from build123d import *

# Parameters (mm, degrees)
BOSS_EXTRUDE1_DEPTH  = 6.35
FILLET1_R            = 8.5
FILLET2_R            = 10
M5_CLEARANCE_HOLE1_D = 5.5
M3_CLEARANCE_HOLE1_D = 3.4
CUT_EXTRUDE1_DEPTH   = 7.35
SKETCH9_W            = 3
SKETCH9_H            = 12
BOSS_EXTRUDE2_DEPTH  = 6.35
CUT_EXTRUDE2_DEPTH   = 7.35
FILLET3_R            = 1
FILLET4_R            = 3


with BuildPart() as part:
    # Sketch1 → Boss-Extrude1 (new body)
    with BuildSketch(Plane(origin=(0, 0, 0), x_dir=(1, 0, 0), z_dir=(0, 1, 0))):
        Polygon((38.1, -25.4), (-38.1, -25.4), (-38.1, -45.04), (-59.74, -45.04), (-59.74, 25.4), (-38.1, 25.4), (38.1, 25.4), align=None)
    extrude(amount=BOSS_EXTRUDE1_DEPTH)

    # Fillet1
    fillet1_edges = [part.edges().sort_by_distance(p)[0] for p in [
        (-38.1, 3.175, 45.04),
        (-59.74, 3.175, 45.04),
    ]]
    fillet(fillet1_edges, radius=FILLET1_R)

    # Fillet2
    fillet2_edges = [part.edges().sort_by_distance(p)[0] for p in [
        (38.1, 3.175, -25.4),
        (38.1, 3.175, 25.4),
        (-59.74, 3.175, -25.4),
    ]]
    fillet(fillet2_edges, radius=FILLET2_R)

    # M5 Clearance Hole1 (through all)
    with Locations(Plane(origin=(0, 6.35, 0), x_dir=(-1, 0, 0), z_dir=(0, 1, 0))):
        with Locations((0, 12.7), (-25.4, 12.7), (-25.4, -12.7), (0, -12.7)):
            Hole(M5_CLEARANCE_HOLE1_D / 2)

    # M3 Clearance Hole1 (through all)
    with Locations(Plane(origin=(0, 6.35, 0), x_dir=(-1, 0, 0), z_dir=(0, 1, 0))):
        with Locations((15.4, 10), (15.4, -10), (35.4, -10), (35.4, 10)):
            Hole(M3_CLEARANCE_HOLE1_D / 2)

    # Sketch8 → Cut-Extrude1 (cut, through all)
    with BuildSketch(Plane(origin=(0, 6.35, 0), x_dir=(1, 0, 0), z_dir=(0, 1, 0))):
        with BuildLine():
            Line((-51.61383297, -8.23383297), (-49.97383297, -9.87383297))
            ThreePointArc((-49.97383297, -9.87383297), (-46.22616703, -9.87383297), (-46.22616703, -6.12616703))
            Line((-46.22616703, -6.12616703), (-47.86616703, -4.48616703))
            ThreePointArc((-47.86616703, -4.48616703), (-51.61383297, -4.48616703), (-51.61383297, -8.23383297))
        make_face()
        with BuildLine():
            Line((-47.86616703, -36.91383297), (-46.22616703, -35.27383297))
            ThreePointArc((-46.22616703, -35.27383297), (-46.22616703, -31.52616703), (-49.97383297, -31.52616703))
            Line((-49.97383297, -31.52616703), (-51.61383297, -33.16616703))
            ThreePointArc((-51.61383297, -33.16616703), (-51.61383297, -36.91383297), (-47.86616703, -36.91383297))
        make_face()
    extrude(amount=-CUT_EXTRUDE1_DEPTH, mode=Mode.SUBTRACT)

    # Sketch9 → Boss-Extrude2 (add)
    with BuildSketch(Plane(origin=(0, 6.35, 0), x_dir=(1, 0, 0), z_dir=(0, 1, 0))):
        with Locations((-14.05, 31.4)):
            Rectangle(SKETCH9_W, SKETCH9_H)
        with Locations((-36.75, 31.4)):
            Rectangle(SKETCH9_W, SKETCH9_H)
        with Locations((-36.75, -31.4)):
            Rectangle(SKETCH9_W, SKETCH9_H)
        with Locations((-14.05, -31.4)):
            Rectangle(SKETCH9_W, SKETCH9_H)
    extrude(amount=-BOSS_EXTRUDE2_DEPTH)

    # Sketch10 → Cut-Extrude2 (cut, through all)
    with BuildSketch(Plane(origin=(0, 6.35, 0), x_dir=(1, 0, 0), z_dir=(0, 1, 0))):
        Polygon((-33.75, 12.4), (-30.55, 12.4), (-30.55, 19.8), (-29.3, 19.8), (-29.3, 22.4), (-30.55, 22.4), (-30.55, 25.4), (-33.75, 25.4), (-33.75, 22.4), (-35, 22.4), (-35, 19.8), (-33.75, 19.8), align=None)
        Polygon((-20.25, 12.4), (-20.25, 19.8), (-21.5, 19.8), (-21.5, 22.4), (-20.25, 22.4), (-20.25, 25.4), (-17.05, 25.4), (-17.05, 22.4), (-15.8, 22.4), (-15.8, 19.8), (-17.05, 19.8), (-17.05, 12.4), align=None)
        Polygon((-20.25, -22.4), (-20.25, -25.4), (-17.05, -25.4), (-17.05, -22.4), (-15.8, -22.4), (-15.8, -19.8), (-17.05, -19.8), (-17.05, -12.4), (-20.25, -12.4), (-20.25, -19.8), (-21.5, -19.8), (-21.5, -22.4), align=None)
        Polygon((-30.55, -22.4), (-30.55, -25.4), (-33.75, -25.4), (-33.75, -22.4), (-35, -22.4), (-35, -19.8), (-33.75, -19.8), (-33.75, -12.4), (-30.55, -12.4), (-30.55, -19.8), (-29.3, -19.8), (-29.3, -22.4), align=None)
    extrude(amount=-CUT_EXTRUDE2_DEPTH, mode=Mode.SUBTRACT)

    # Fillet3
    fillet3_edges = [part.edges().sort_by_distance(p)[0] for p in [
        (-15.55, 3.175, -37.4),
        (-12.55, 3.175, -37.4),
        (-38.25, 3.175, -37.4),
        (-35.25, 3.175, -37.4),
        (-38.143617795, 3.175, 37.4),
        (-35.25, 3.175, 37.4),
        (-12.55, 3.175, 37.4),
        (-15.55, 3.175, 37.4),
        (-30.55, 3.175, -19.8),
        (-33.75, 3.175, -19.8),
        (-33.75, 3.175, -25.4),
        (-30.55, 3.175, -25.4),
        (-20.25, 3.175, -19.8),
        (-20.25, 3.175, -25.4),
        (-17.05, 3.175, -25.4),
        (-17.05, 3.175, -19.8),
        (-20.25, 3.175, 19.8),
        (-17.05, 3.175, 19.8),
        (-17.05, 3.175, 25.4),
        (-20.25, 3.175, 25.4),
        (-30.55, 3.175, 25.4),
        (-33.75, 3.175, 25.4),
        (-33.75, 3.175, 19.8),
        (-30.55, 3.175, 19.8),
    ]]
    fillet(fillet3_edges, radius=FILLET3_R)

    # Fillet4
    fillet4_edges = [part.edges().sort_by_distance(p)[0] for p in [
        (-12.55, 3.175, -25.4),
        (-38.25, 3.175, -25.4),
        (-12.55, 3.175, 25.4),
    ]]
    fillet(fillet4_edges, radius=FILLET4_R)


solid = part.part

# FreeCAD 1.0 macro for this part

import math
import FreeCAD as App
import Part
import Sketcher

V = App.Vector
Q = App.Units.Quantity


def edges_at(feature, points):
    """Names of the edges that pass closest to the given points."""
    edges = feature.Shape.Edges
    near = lambda p: min(range(len(edges)), key=lambda i: edges[i].distToShape(Part.Vertex(*p))[0])
    return sorted({f"Edge{near(p) + 1}" for p in points})

doc = App.newDocument("Part")
params = doc.addObject("Spreadsheet::Sheet", "Params")
for row, (alias, value) in enumerate([
    ("sketch1_width", "76.2 mm"),
    ("sketch1_height", "50.8 mm"),
    ("sketch1_width2", "97.84 mm"),
    ("sketch1_height2", "70.44 mm"),
    ("pad1_length", "6.35 mm"),
    ("fillet_radius", "8.5 mm"),
    ("fillet2_radius", "10 mm"),
    ("sketch2_diameter", "5.5 mm"),
    ("hole_diameter", "5.5 mm"),
    ("sketch3_diameter", "3.4 mm"),
    ("hole2_diameter", "3.4 mm"),
    ("sketch4_radius", "2.65 mm"),
    ("sketch5_width", "3 mm"),
    ("sketch5_height", "12 mm"),
    ("pad2_length", "6.35 mm"),
    ("sketch6_height", "3 mm"),
    ("sketch6_width", "3.2 mm"),
    ("sketch6_height2", "7.4 mm"),
    ("sketch6_height3", "2.6 mm"),
    ("sketch6_width2", "1.25 mm"),
    ("fillet3_radius", "1 mm"),
    ("fillet4_radius", "3 mm"),
], start=1):
    params.set(f"A{row}", alias)
    params.set(f"B{row}", "=" + value)
    params.setAlias(f"B{row}", alias)

body = doc.addObject("PartDesign::Body", "Body")

# Sketch on XZ plane
sketch1 = doc.addObject("Sketcher::SketchObject", "Sketch")
body.addObject(sketch1)
sketch1.AttachmentSupport = (doc.XZ_Plane, [""])
sketch1.MapMode = "FlatFace"
sketch1.addGeometry(Part.LineSegment(V(-38.1, 25.4, 0), V(38.1, 25.4, 0)), False)
sketch1.addGeometry(Part.LineSegment(V(38.1, 25.4, 0), V(38.1, -25.4, 0)), False)
sketch1.addGeometry(Part.LineSegment(V(38.1, -25.4, 0), V(-59.74, -25.4, 0)), False)
sketch1.addGeometry(Part.LineSegment(V(-59.74, -25.4, 0), V(-59.74, 45.04, 0)), False)
sketch1.addGeometry(Part.LineSegment(V(-59.74, 45.04, 0), V(-38.1, 45.04, 0)), False)
sketch1.addGeometry(Part.LineSegment(V(-38.1, 45.04, 0), V(-38.1, 25.4, 0)), False)
sketch1.addConstraint(Sketcher.Constraint("Coincident", 0, 2, 1, 1))
sketch1.addConstraint(Sketcher.Constraint("Coincident", 1, 2, 2, 1))
sketch1.addConstraint(Sketcher.Constraint("Coincident", 2, 2, 3, 1))
sketch1.addConstraint(Sketcher.Constraint("Coincident", 3, 2, 4, 1))
sketch1.addConstraint(Sketcher.Constraint("Coincident", 4, 2, 5, 1))
sketch1.addConstraint(Sketcher.Constraint("Coincident", 5, 2, 0, 1))
sketch1.addConstraint(Sketcher.Constraint("Horizontal", 0))
sketch1.addConstraint(Sketcher.Constraint("Vertical", 1))
sketch1.addConstraint(Sketcher.Constraint("Horizontal", 2))
sketch1.addConstraint(Sketcher.Constraint("Vertical", 3))
sketch1.addConstraint(Sketcher.Constraint("Horizontal", 4))
sketch1.addConstraint(Sketcher.Constraint("Vertical", 5))
sketch1.addConstraint(Sketcher.Constraint("Symmetric", 1, 2, 5, 2, -1, 1))
sketch1.addConstraint(Sketcher.Constraint("DistanceX", 0, 1, 0, 2, Q("76.2 mm")))
sketch1.addConstraint(Sketcher.Constraint("DistanceY", 1, 2, 1, 1, Q("50.8 mm")))
sketch1.addConstraint(Sketcher.Constraint("DistanceX", 2, 2, 2, 1, Q("97.84 mm")))
sketch1.addConstraint(Sketcher.Constraint("DistanceY", 3, 1, 3, 2, Q("70.44 mm")))
sketch1.setExpression("Constraints[13]", "Params.sketch1_width")
sketch1.setExpression("Constraints[14]", "Params.sketch1_height")
sketch1.setExpression("Constraints[15]", "Params.sketch1_width2")
sketch1.setExpression("Constraints[16]", "Params.sketch1_height2")
pad1 = doc.addObject("PartDesign::Pad", "Pad")
body.addObject(pad1)
pad1.Profile = sketch1
pad1.setExpression("Length", "Params.pad1_length")
pad1.Reversed = True
doc.recompute()

fillet = doc.addObject("PartDesign::Fillet", "Fillet")
body.addObject(fillet)
fillet.Base = (pad1, edges_at(pad1, [(-38.1, 3.175, 45.04), (-59.74, 3.175, 45.04)]))
fillet.setExpression("Radius", "Params.fillet_radius")
doc.recompute()

fillet2 = doc.addObject("PartDesign::Fillet", "Fillet001")
body.addObject(fillet2)
fillet2.Base = (fillet, edges_at(fillet, [(38.1, 3.175, -25.4), (38.1, 3.175, 25.4), (-59.74, 3.175, -25.4)]))
fillet2.setExpression("Radius", "Params.fillet2_radius")

# Sketch on XZ plane
sketch2 = doc.addObject("Sketcher::SketchObject", "Sketch001")
body.addObject(sketch2)
sketch2.AttachmentSupport = (doc.XZ_Plane, [""])
sketch2.MapMode = "FlatFace"
sketch2.AttachmentOffset = App.Placement(V(0, 0, -6.35), App.Rotation())
sketch2.addGeometry(Part.Circle(V(0, 12.7, 0), V(0, 0, 1), 2.75), False)
sketch2.addGeometry(Part.Circle(V(25.4, 12.7, 0), V(0, 0, 1), 2.75), False)
sketch2.addGeometry(Part.Circle(V(25.4, -12.7, 0), V(0, 0, 1), 2.75), False)
sketch2.addGeometry(Part.Circle(V(0, -12.7, 0), V(0, 0, 1), 2.75), False)
sketch2.addConstraint(Sketcher.Constraint("Equal", 0, 1))
sketch2.addConstraint(Sketcher.Constraint("Equal", 1, 2))
sketch2.addConstraint(Sketcher.Constraint("Equal", 2, 3))
sketch2.addConstraint(Sketcher.Constraint("Symmetric", 0, 3, 3, 3, -1, 1))
sketch2.addConstraint(Sketcher.Constraint("Symmetric", 1, 3, 2, 3, -1))
sketch2.addConstraint(Sketcher.Constraint("PointOnObject", 0, 3, -2))
sketch2.addConstraint(Sketcher.Constraint("Horizontal", 0, 3, 1, 3))
sketch2.addConstraint(Sketcher.Constraint("Diameter", 0, Q("5.5 mm")))
sketch2.addConstraint(Sketcher.Constraint("DistanceY", -1, 1, 0, 3, Q("12.7 mm")))
sketch2.addConstraint(Sketcher.Constraint("DistanceX", -1, 1, 1, 3, Q("25.4 mm")))
sketch2.setExpression("Constraints[7]", "Params.sketch2_diameter")
doc.recompute()
hole = doc.addObject("PartDesign::Hole", "Hole")
body.addObject(hole)
hole.Profile = sketch2
hole.ThreadType = "None"
hole.setExpression("Diameter", "Params.hole_diameter")
hole.DepthType = "ThroughAll"
hole.Reversed = True

# Sketch on XZ plane
sketch3 = doc.addObject("Sketcher::SketchObject", "Sketch002")
body.addObject(sketch3)
sketch3.AttachmentSupport = (doc.XZ_Plane, [""])
sketch3.MapMode = "FlatFace"
sketch3.AttachmentOffset = App.Placement(V(0, 0, -6.35), App.Rotation())
sketch3.addGeometry(Part.Circle(V(-15.4, 10, 0), V(0, 0, 1), 1.7), False)
sketch3.addGeometry(Part.Circle(V(-15.4, -10, 0), V(0, 0, 1), 1.7), False)
sketch3.addGeometry(Part.Circle(V(-35.4, -10, 0), V(0, 0, 1), 1.7), False)
sketch3.addGeometry(Part.Circle(V(-35.4, 10, 0), V(0, 0, 1), 1.7), False)
sketch3.addConstraint(Sketcher.Constraint("Equal", 0, 1))
sketch3.addConstraint(Sketcher.Constraint("Equal", 1, 2))
sketch3.addConstraint(Sketcher.Constraint("Equal", 2, 3))
sketch3.addConstraint(Sketcher.Constraint("Symmetric", 0, 3, 1, 3, -1))
sketch3.addConstraint(Sketcher.Constraint("Symmetric", 2, 3, 3, 3, -1))
sketch3.addConstraint(Sketcher.Constraint("Horizontal", 1, 3, 2, 3))
sketch3.addConstraint(Sketcher.Constraint("Diameter", 0, Q("3.4 mm")))
sketch3.addConstraint(Sketcher.Constraint("DistanceY", -1, 1, 0, 3, Q("10 mm")))
sketch3.addConstraint(Sketcher.Constraint("DistanceX", 2, 3, 1, 3, Q("20 mm")))
sketch3.addConstraint(Sketcher.Constraint("DistanceX", 0, 3, -1, 1, Q("15.4 mm")))
sketch3.setExpression("Constraints[6]", "Params.sketch3_diameter")
doc.recompute()
hole2 = doc.addObject("PartDesign::Hole", "Hole001")
body.addObject(hole2)
hole2.Profile = sketch3
hole2.ThreadType = "None"
hole2.setExpression("Diameter", "Params.hole2_diameter")
hole2.DepthType = "ThroughAll"
hole2.Reversed = True

# Sketch on XZ plane
sketch4 = doc.addObject("Sketcher::SketchObject", "Sketch003")
body.addObject(sketch4)
sketch4.AttachmentSupport = (doc.XZ_Plane, [""])
sketch4.MapMode = "FlatFace"
sketch4.AttachmentOffset = App.Placement(V(0, 0, -6.35), App.Rotation())
sketch4.addGeometry(Part.LineSegment(V(-51.613833, 8.233833, 0), V(-49.973833, 9.873833, 0)), False)
sketch4.addGeometry(Part.ArcOfCircle(Part.Circle(V(-48.1, 8, 0), V(0, 0, 1), 2.65), math.radians(-45), math.radians(135)), False)
sketch4.addGeometry(Part.LineSegment(V(-46.226167, 6.126167, 0), V(-47.866167, 4.486167, 0)), False)
sketch4.addGeometry(Part.ArcOfCircle(Part.Circle(V(-49.74, 6.36, 0), V(0, 0, 1), 2.65), math.radians(135), math.radians(315)), False)
sketch4.addGeometry(Part.LineSegment(V(-47.866167, 36.913833, 0), V(-46.226167, 35.273833, 0)), False)
sketch4.addGeometry(Part.ArcOfCircle(Part.Circle(V(-48.1, 33.4, 0), V(0, 0, 1), 2.65), math.radians(-135), math.radians(45)), False)
sketch4.addGeometry(Part.LineSegment(V(-49.973833, 31.526167, 0), V(-51.613833, 33.166167, 0)), False)
sketch4.addGeometry(Part.ArcOfCircle(Part.Circle(V(-49.74, 35.04, 0), V(0, 0, 1), 2.65), math.radians(45), math.radians(225)), False)
sketch4.addConstraint(Sketcher.Constraint("Tangent", 0, 2, 1, 2))
sketch4.addConstraint(Sketcher.Constraint("Tangent", 1, 1, 2, 1))
sketch4.addConstraint(Sketcher.Constraint("Tangent", 2, 2, 3, 2))
sketch4.addConstraint(Sketcher.Constraint("Tangent", 3, 1, 0, 1))
sketch4.addConstraint(Sketcher.Constraint("Tangent", 4, 2, 5, 2))
sketch4.addConstraint(Sketcher.Constraint("Tangent", 5, 1, 6, 1))
sketch4.addConstraint(Sketcher.Constraint("Tangent", 6, 2, 7, 2))
sketch4.addConstraint(Sketcher.Constraint("Tangent", 7, 1, 4, 1))
sketch4.addConstraint(Sketcher.Constraint("Equal", 1, 3))
sketch4.addConstraint(Sketcher.Constraint("Equal", 3, 5))
sketch4.addConstraint(Sketcher.Constraint("Equal", 5, 7))
sketch4.addConstraint(Sketcher.Constraint("Perpendicular", 2, 4))
sketch4.addConstraint(Sketcher.Constraint("Vertical", 1, 3, 5, 3))
sketch4.addConstraint(Sketcher.Constraint("Vertical", 3, 3, 7, 3))
sketch4.addConstraint(Sketcher.Constraint("Vertical", 1, 1, 4, 2))
sketch4.addConstraint(Sketcher.Constraint("Radius", 1, Q("2.65 mm")))
sketch4.addConstraint(Sketcher.Constraint("DistanceY", -1, 1, 1, 3, Q("8 mm")))
sketch4.addConstraint(Sketcher.Constraint("DistanceX", 1, 3, -1, 1, Q("48.1 mm")))
sketch4.addConstraint(Sketcher.Constraint("DistanceY", -1, 1, 5, 3, Q("33.4 mm")))
sketch4.addConstraint(Sketcher.Constraint("DistanceX", 3, 3, -1, 1, Q("49.74 mm")))
sketch4.setExpression("Constraints[15]", "Params.sketch4_radius")
pocket1 = doc.addObject("PartDesign::Pocket", "Pocket")
body.addObject(pocket1)
pocket1.Profile = sketch4
pocket1.Type = "ThroughAll"
pocket1.Reversed = True

# Sketch on XZ plane
sketch5 = doc.addObject("Sketcher::SketchObject", "Sketch004")
body.addObject(sketch5)
sketch5.AttachmentSupport = (doc.XZ_Plane, [""])
sketch5.MapMode = "FlatFace"
sketch5.AttachmentOffset = App.Placement(V(0, 0, -6.35), App.Rotation())
sketch5.addGeometry(Part.LineSegment(V(-15.55, -37.4, 0), V(-15.55, -25.4, 0)), False)
sketch5.addGeometry(Part.LineSegment(V(-15.55, -25.4, 0), V(-12.55, -25.4, 0)), False)
sketch5.addGeometry(Part.LineSegment(V(-12.55, -25.4, 0), V(-12.55, -37.4, 0)), False)
sketch5.addGeometry(Part.LineSegment(V(-12.55, -37.4, 0), V(-15.55, -37.4, 0)), False)
sketch5.addGeometry(Part.LineSegment(V(-38.25, -37.4, 0), V(-38.25, -25.4, 0)), False)
sketch5.addGeometry(Part.LineSegment(V(-38.25, -25.4, 0), V(-35.25, -25.4, 0)), False)
sketch5.addGeometry(Part.LineSegment(V(-35.25, -25.4, 0), V(-35.25, -37.4, 0)), False)
sketch5.addGeometry(Part.LineSegment(V(-35.25, -37.4, 0), V(-38.25, -37.4, 0)), False)
sketch5.addGeometry(Part.LineSegment(V(-38.25, 25.4, 0), V(-38.25, 37.4, 0)), False)
sketch5.addGeometry(Part.LineSegment(V(-38.25, 37.4, 0), V(-35.25, 37.4, 0)), False)
sketch5.addGeometry(Part.LineSegment(V(-35.25, 37.4, 0), V(-35.25, 25.4, 0)), False)
sketch5.addGeometry(Part.LineSegment(V(-35.25, 25.4, 0), V(-38.25, 25.4, 0)), False)
sketch5.addGeometry(Part.LineSegment(V(-15.55, 25.4, 0), V(-15.55, 37.4, 0)), False)
sketch5.addGeometry(Part.LineSegment(V(-15.55, 37.4, 0), V(-12.55, 37.4, 0)), False)
sketch5.addGeometry(Part.LineSegment(V(-12.55, 37.4, 0), V(-12.55, 25.4, 0)), False)
sketch5.addGeometry(Part.LineSegment(V(-12.55, 25.4, 0), V(-15.55, 25.4, 0)), False)
sketch5.addConstraint(Sketcher.Constraint("Coincident", 0, 2, 1, 1))
sketch5.addConstraint(Sketcher.Constraint("Coincident", 1, 2, 2, 1))
sketch5.addConstraint(Sketcher.Constraint("Coincident", 2, 2, 3, 1))
sketch5.addConstraint(Sketcher.Constraint("Coincident", 3, 2, 0, 1))
sketch5.addConstraint(Sketcher.Constraint("Coincident", 4, 2, 5, 1))
sketch5.addConstraint(Sketcher.Constraint("Coincident", 5, 2, 6, 1))
sketch5.addConstraint(Sketcher.Constraint("Coincident", 6, 2, 7, 1))
sketch5.addConstraint(Sketcher.Constraint("Coincident", 7, 2, 4, 1))
sketch5.addConstraint(Sketcher.Constraint("Coincident", 8, 2, 9, 1))
sketch5.addConstraint(Sketcher.Constraint("Coincident", 9, 2, 10, 1))
sketch5.addConstraint(Sketcher.Constraint("Coincident", 10, 2, 11, 1))
sketch5.addConstraint(Sketcher.Constraint("Coincident", 11, 2, 8, 1))
sketch5.addConstraint(Sketcher.Constraint("Coincident", 12, 2, 13, 1))
sketch5.addConstraint(Sketcher.Constraint("Coincident", 13, 2, 14, 1))
sketch5.addConstraint(Sketcher.Constraint("Coincident", 14, 2, 15, 1))
sketch5.addConstraint(Sketcher.Constraint("Coincident", 15, 2, 12, 1))
sketch5.addConstraint(Sketcher.Constraint("Vertical", 0))
sketch5.addConstraint(Sketcher.Constraint("Horizontal", 1))
sketch5.addConstraint(Sketcher.Constraint("Vertical", 2))
sketch5.addConstraint(Sketcher.Constraint("Horizontal", 3))
sketch5.addConstraint(Sketcher.Constraint("Vertical", 4))
sketch5.addConstraint(Sketcher.Constraint("Horizontal", 5))
sketch5.addConstraint(Sketcher.Constraint("Vertical", 6))
sketch5.addConstraint(Sketcher.Constraint("Horizontal", 7))
sketch5.addConstraint(Sketcher.Constraint("Vertical", 8))
sketch5.addConstraint(Sketcher.Constraint("Horizontal", 9))
sketch5.addConstraint(Sketcher.Constraint("Vertical", 10))
sketch5.addConstraint(Sketcher.Constraint("Horizontal", 11))
sketch5.addConstraint(Sketcher.Constraint("Vertical", 12))
sketch5.addConstraint(Sketcher.Constraint("Horizontal", 13))
sketch5.addConstraint(Sketcher.Constraint("Vertical", 14))
sketch5.addConstraint(Sketcher.Constraint("Horizontal", 15))
sketch5.addConstraint(Sketcher.Constraint("Symmetric", 7, 2, 8, 2, -1))
sketch5.addConstraint(Sketcher.Constraint("Symmetric", 5, 2, 10, 2, -1))
sketch5.addConstraint(Sketcher.Constraint("Symmetric", 3, 2, 12, 2, -1))
sketch5.addConstraint(Sketcher.Constraint("Symmetric", 1, 2, 14, 2, -1))
sketch5.addConstraint(Sketcher.Constraint("Horizontal", 1, 2, 4, 2))
sketch5.addConstraint(Sketcher.Constraint("Horizontal", 3, 2, 6, 2))
sketch5.addConstraint(Sketcher.Constraint("Equal", 3, 5))
sketch5.addConstraint(Sketcher.Constraint("DistanceX", 1, 1, 1, 2, Q("3 mm")))
sketch5.addConstraint(Sketcher.Constraint("DistanceY", 0, 1, 0, 2, Q("12 mm")))
sketch5.addConstraint(Sketcher.Constraint("DistanceY", 0, 2, -1, 1, Q("25.4 mm")))
sketch5.addConstraint(Sketcher.Constraint("DistanceX", 4, 2, 0, 2, Q("22.7 mm")))
sketch5.addConstraint(Sketcher.Constraint("DistanceX", 0, 2, -1, 1, Q("15.55 mm")))
sketch5.setExpression("Constraints[39]", "Params.sketch5_width")
sketch5.setExpression("Constraints[40]", "Params.sketch5_height")
pad2 = doc.addObject("PartDesign::Pad", "Pad001")
body.addObject(pad2)
pad2.Profile = sketch5
pad2.setExpression("Length", "Params.pad2_length")

# Sketch on XZ plane
sketch6 = doc.addObject("Sketcher::SketchObject", "Sketch005")
body.addObject(sketch6)
sketch6.AttachmentSupport = (doc.XZ_Plane, [""])
sketch6.MapMode = "FlatFace"
sketch6.AttachmentOffset = App.Placement(V(0, 0, -6.35), App.Rotation())
sketch6.addGeometry(Part.LineSegment(V(-33.75, -12.4, 0), V(-30.55, -12.4, 0)), False)
sketch6.addGeometry(Part.LineSegment(V(-30.55, -12.4, 0), V(-30.55, -19.8, 0)), False)
sketch6.addGeometry(Part.LineSegment(V(-30.55, -19.8, 0), V(-29.3, -19.8, 0)), False)
sketch6.addGeometry(Part.LineSegment(V(-29.3, -19.8, 0), V(-29.3, -22.4, 0)), False)
sketch6.addGeometry(Part.LineSegment(V(-29.3, -22.4, 0), V(-30.55, -22.4, 0)), False)
sketch6.addGeometry(Part.LineSegment(V(-30.55, -22.4, 0), V(-30.55, -25.4, 0)), False)
sketch6.addGeometry(Part.LineSegment(V(-30.55, -25.4, 0), V(-33.75, -25.4, 0)), False)
sketch6.addGeometry(Part.LineSegment(V(-33.75, -25.4, 0), V(-33.75, -22.4, 0)), False)
sketch6.addGeometry(Part.LineSegment(V(-33.75, -22.4, 0), V(-35, -22.4, 0)), False)
sketch6.addGeometry(Part.LineSegment(V(-35, -22.4, 0), V(-35, -19.8, 0)), False)
sketch6.addGeometry(Part.LineSegment(V(-35, -19.8, 0), V(-33.75, -19.8, 0)), False)
sketch6.addGeometry(Part.LineSegment(V(-33.75, -19.8, 0), V(-33.75, -12.4, 0)), False)
sketch6.addGeometry(Part.LineSegment(V(-20.25, -19.8, 0), V(-20.25, -12.4, 0)), False)
sketch6.addGeometry(Part.LineSegment(V(-20.25, -12.4, 0), V(-17.05, -12.4, 0)), False)
sketch6.addGeometry(Part.LineSegment(V(-17.05, -12.4, 0), V(-17.05, -19.8, 0)), False)
sketch6.addGeometry(Part.LineSegment(V(-17.05, -19.8, 0), V(-15.8, -19.8, 0)), False)
sketch6.addGeometry(Part.LineSegment(V(-15.8, -19.8, 0), V(-15.8, -22.4, 0)), False)
sketch6.addGeometry(Part.LineSegment(V(-15.8, -22.4, 0), V(-17.05, -22.4, 0)), False)
sketch6.addGeometry(Part.LineSegment(V(-17.05, -22.4, 0), V(-17.05, -25.4, 0)), False)
sketch6.addGeometry(Part.LineSegment(V(-17.05, -25.4, 0), V(-20.25, -25.4, 0)), False)
sketch6.addGeometry(Part.LineSegment(V(-20.25, -25.4, 0), V(-20.25, -22.4, 0)), False)
sketch6.addGeometry(Part.LineSegment(V(-20.25, -22.4, 0), V(-21.5, -22.4, 0)), False)
sketch6.addGeometry(Part.LineSegment(V(-21.5, -22.4, 0), V(-21.5, -19.8, 0)), False)
sketch6.addGeometry(Part.LineSegment(V(-21.5, -19.8, 0), V(-20.25, -19.8, 0)), False)
sketch6.addGeometry(Part.LineSegment(V(-20.25, 22.4, 0), V(-20.25, 25.4, 0)), False)
sketch6.addGeometry(Part.LineSegment(V(-20.25, 25.4, 0), V(-17.05, 25.4, 0)), False)
sketch6.addGeometry(Part.LineSegment(V(-17.05, 25.4, 0), V(-17.05, 22.4, 0)), False)
sketch6.addGeometry(Part.LineSegment(V(-17.05, 22.4, 0), V(-15.8, 22.4, 0)), False)
sketch6.addGeometry(Part.LineSegment(V(-15.8, 22.4, 0), V(-15.8, 19.8, 0)), False)
sketch6.addGeometry(Part.LineSegment(V(-15.8, 19.8, 0), V(-17.05, 19.8, 0)), False)
sketch6.addGeometry(Part.LineSegment(V(-17.05, 19.8, 0), V(-17.05, 12.4, 0)), False)
sketch6.addGeometry(Part.LineSegment(V(-17.05, 12.4, 0), V(-20.25, 12.4, 0)), False)
sketch6.addGeometry(Part.LineSegment(V(-20.25, 12.4, 0), V(-20.25, 19.8, 0)), False)
sketch6.addGeometry(Part.LineSegment(V(-20.25, 19.8, 0), V(-21.5, 19.8, 0)), False)
sketch6.addGeometry(Part.LineSegment(V(-21.5, 19.8, 0), V(-21.5, 22.4, 0)), False)
sketch6.addGeometry(Part.LineSegment(V(-21.5, 22.4, 0), V(-20.25, 22.4, 0)), False)
sketch6.addGeometry(Part.LineSegment(V(-30.55, 25.4, 0), V(-30.55, 22.4, 0)), False)
sketch6.addGeometry(Part.LineSegment(V(-30.55, 22.4, 0), V(-29.3, 22.4, 0)), False)
sketch6.addGeometry(Part.LineSegment(V(-29.3, 22.4, 0), V(-29.3, 19.8, 0)), False)
sketch6.addGeometry(Part.LineSegment(V(-29.3, 19.8, 0), V(-30.55, 19.8, 0)), False)
sketch6.addGeometry(Part.LineSegment(V(-30.55, 19.8, 0), V(-30.55, 12.4, 0)), False)
sketch6.addGeometry(Part.LineSegment(V(-30.55, 12.4, 0), V(-33.75, 12.4, 0)), False)
sketch6.addGeometry(Part.LineSegment(V(-33.75, 12.4, 0), V(-33.75, 19.8, 0)), False)
sketch6.addGeometry(Part.LineSegment(V(-33.75, 19.8, 0), V(-35, 19.8, 0)), False)
sketch6.addGeometry(Part.LineSegment(V(-35, 19.8, 0), V(-35, 22.4, 0)), False)
sketch6.addGeometry(Part.LineSegment(V(-35, 22.4, 0), V(-33.75, 22.4, 0)), False)
sketch6.addGeometry(Part.LineSegment(V(-33.75, 22.4, 0), V(-33.75, 25.4, 0)), False)
sketch6.addGeometry(Part.LineSegment(V(-33.75, 25.4, 0), V(-30.55, 25.4, 0)), False)
sketch6.addConstraint(Sketcher.Constraint("Coincident", 0, 2, 1, 1))
sketch6.addConstraint(Sketcher.Constraint("Coincident", 1, 2, 2, 1))
sketch6.addConstraint(Sketcher.Constraint("Coincident", 2, 2, 3, 1))
sketch6.addConstraint(Sketcher.Constraint("Coincident", 3, 2, 4, 1))
sketch6.addConstraint(Sketcher.Constraint("Coincident", 4, 2, 5, 1))
sketch6.addConstraint(Sketcher.Constraint("Coincident", 5, 2, 6, 1))
sketch6.addConstraint(Sketcher.Constraint("Coincident", 6, 2, 7, 1))
sketch6.addConstraint(Sketcher.Constraint("Coincident", 7, 2, 8, 1))
sketch6.addConstraint(Sketcher.Constraint("Coincident", 8, 2, 9, 1))
sketch6.addConstraint(Sketcher.Constraint("Coincident", 9, 2, 10, 1))
sketch6.addConstraint(Sketcher.Constraint("Coincident", 10, 2, 11, 1))
sketch6.addConstraint(Sketcher.Constraint("Coincident", 11, 2, 0, 1))
sketch6.addConstraint(Sketcher.Constraint("Coincident", 12, 2, 13, 1))
sketch6.addConstraint(Sketcher.Constraint("Coincident", 13, 2, 14, 1))
sketch6.addConstraint(Sketcher.Constraint("Coincident", 14, 2, 15, 1))
sketch6.addConstraint(Sketcher.Constraint("Coincident", 15, 2, 16, 1))
sketch6.addConstraint(Sketcher.Constraint("Coincident", 16, 2, 17, 1))
sketch6.addConstraint(Sketcher.Constraint("Coincident", 17, 2, 18, 1))
sketch6.addConstraint(Sketcher.Constraint("Coincident", 18, 2, 19, 1))
sketch6.addConstraint(Sketcher.Constraint("Coincident", 19, 2, 20, 1))
sketch6.addConstraint(Sketcher.Constraint("Coincident", 20, 2, 21, 1))
sketch6.addConstraint(Sketcher.Constraint("Coincident", 21, 2, 22, 1))
sketch6.addConstraint(Sketcher.Constraint("Coincident", 22, 2, 23, 1))
sketch6.addConstraint(Sketcher.Constraint("Coincident", 23, 2, 12, 1))
sketch6.addConstraint(Sketcher.Constraint("Coincident", 24, 2, 25, 1))
sketch6.addConstraint(Sketcher.Constraint("Coincident", 25, 2, 26, 1))
sketch6.addConstraint(Sketcher.Constraint("Coincident", 26, 2, 27, 1))
sketch6.addConstraint(Sketcher.Constraint("Coincident", 27, 2, 28, 1))
sketch6.addConstraint(Sketcher.Constraint("Coincident", 28, 2, 29, 1))
sketch6.addConstraint(Sketcher.Constraint("Coincident", 29, 2, 30, 1))
sketch6.addConstraint(Sketcher.Constraint("Coincident", 30, 2, 31, 1))
sketch6.addConstraint(Sketcher.Constraint("Coincident", 31, 2, 32, 1))
sketch6.addConstraint(Sketcher.Constraint("Coincident", 32, 2, 33, 1))
sketch6.addConstraint(Sketcher.Constraint("Coincident", 33, 2, 34, 1))
sketch6.addConstraint(Sketcher.Constraint("Coincident", 34, 2, 35, 1))
sketch6.addConstraint(Sketcher.Constraint("Coincident", 35, 2, 24, 1))
sketch6.addConstraint(Sketcher.Constraint("Coincident", 36, 2, 37, 1))
sketch6.addConstraint(Sketcher.Constraint("Coincident", 37, 2, 38, 1))
sketch6.addConstraint(Sketcher.Constraint("Coincident", 38, 2, 39, 1))
sketch6.addConstraint(Sketcher.Constraint("Coincident", 39, 2, 40, 1))
sketch6.addConstraint(Sketcher.Constraint("Coincident", 40, 2, 41, 1))
sketch6.addConstraint(Sketcher.Constraint("Coincident", 41, 2, 42, 1))
sketch6.addConstraint(Sketcher.Constraint("Coincident", 42, 2, 43, 1))
sketch6.addConstraint(Sketcher.Constraint("Coincident", 43, 2, 44, 1))
sketch6.addConstraint(Sketcher.Constraint("Coincident", 44, 2, 45, 1))
sketch6.addConstraint(Sketcher.Constraint("Coincident", 45, 2, 46, 1))
sketch6.addConstraint(Sketcher.Constraint("Coincident", 46, 2, 47, 1))
sketch6.addConstraint(Sketcher.Constraint("Coincident", 47, 2, 36, 1))
sketch6.addConstraint(Sketcher.Constraint("Horizontal", 0))
sketch6.addConstraint(Sketcher.Constraint("Vertical", 1))
sketch6.addConstraint(Sketcher.Constraint("Horizontal", 2))
sketch6.addConstraint(Sketcher.Constraint("Vertical", 3))
sketch6.addConstraint(Sketcher.Constraint("Horizontal", 4))
sketch6.addConstraint(Sketcher.Constraint("Vertical", 5))
sketch6.addConstraint(Sketcher.Constraint("Horizontal", 6))
sketch6.addConstraint(Sketcher.Constraint("Vertical", 7))
sketch6.addConstraint(Sketcher.Constraint("Horizontal", 8))
sketch6.addConstraint(Sketcher.Constraint("Vertical", 9))
sketch6.addConstraint(Sketcher.Constraint("Horizontal", 10))
sketch6.addConstraint(Sketcher.Constraint("Vertical", 11))
sketch6.addConstraint(Sketcher.Constraint("Vertical", 12))
sketch6.addConstraint(Sketcher.Constraint("Horizontal", 13))
sketch6.addConstraint(Sketcher.Constraint("Vertical", 14))
sketch6.addConstraint(Sketcher.Constraint("Horizontal", 15))
sketch6.addConstraint(Sketcher.Constraint("Vertical", 16))
sketch6.addConstraint(Sketcher.Constraint("Horizontal", 17))
sketch6.addConstraint(Sketcher.Constraint("Vertical", 18))
sketch6.addConstraint(Sketcher.Constraint("Horizontal", 19))
sketch6.addConstraint(Sketcher.Constraint("Vertical", 20))
sketch6.addConstraint(Sketcher.Constraint("Horizontal", 21))
sketch6.addConstraint(Sketcher.Constraint("Vertical", 22))
sketch6.addConstraint(Sketcher.Constraint("Horizontal", 23))
sketch6.addConstraint(Sketcher.Constraint("Vertical", 24))
sketch6.addConstraint(Sketcher.Constraint("Horizontal", 25))
sketch6.addConstraint(Sketcher.Constraint("Vertical", 26))
sketch6.addConstraint(Sketcher.Constraint("Horizontal", 27))
sketch6.addConstraint(Sketcher.Constraint("Vertical", 28))
sketch6.addConstraint(Sketcher.Constraint("Horizontal", 29))
sketch6.addConstraint(Sketcher.Constraint("Vertical", 30))
sketch6.addConstraint(Sketcher.Constraint("Horizontal", 31))
sketch6.addConstraint(Sketcher.Constraint("Vertical", 32))
sketch6.addConstraint(Sketcher.Constraint("Horizontal", 33))
sketch6.addConstraint(Sketcher.Constraint("Vertical", 34))
sketch6.addConstraint(Sketcher.Constraint("Horizontal", 35))
sketch6.addConstraint(Sketcher.Constraint("Vertical", 36))
sketch6.addConstraint(Sketcher.Constraint("Horizontal", 37))
sketch6.addConstraint(Sketcher.Constraint("Vertical", 38))
sketch6.addConstraint(Sketcher.Constraint("Horizontal", 39))
sketch6.addConstraint(Sketcher.Constraint("Vertical", 40))
sketch6.addConstraint(Sketcher.Constraint("Horizontal", 41))
sketch6.addConstraint(Sketcher.Constraint("Vertical", 42))
sketch6.addConstraint(Sketcher.Constraint("Horizontal", 43))
sketch6.addConstraint(Sketcher.Constraint("Vertical", 44))
sketch6.addConstraint(Sketcher.Constraint("Horizontal", 45))
sketch6.addConstraint(Sketcher.Constraint("Vertical", 46))
sketch6.addConstraint(Sketcher.Constraint("Horizontal", 47))
sketch6.addConstraint(Sketcher.Constraint("Symmetric", 19, 2, 24, 2, -1))
sketch6.addConstraint(Sketcher.Constraint("Symmetric", 17, 2, 26, 2, -1))
sketch6.addConstraint(Sketcher.Constraint("Symmetric", 15, 2, 28, 2, -1))
sketch6.addConstraint(Sketcher.Constraint("Symmetric", 13, 2, 30, 2, -1))
sketch6.addConstraint(Sketcher.Constraint("Symmetric", 23, 2, 32, 2, -1))
sketch6.addConstraint(Sketcher.Constraint("Symmetric", 21, 2, 34, 2, -1))
sketch6.addConstraint(Sketcher.Constraint("Symmetric", 4, 2, 36, 2, -1))
sketch6.addConstraint(Sketcher.Constraint("Symmetric", 2, 2, 38, 2, -1))
sketch6.addConstraint(Sketcher.Constraint("Symmetric", 0, 2, 40, 2, -1))
sketch6.addConstraint(Sketcher.Constraint("Symmetric", 10, 2, 42, 2, -1))
sketch6.addConstraint(Sketcher.Constraint("Symmetric", 8, 2, 44, 2, -1))
sketch6.addConstraint(Sketcher.Constraint("Symmetric", 6, 2, 46, 2, -1))
sketch6.addConstraint(Sketcher.Constraint("Horizontal", 4, 2, 7, 2))
sketch6.addConstraint(Sketcher.Constraint("Horizontal", 2, 2, 9, 2))
sketch6.addConstraint(Sketcher.Constraint("Horizontal", 11, 2, 12, 2))
sketch6.addConstraint(Sketcher.Constraint("Horizontal", 10, 2, 14, 2))
sketch6.addConstraint(Sketcher.Constraint("Horizontal", 8, 2, 16, 2))
sketch6.addConstraint(Sketcher.Constraint("Horizontal", 6, 2, 18, 2))
sketch6.addConstraint(Sketcher.Constraint("Horizontal", 17, 2, 20, 2))
sketch6.addConstraint(Sketcher.Constraint("Horizontal", 15, 2, 22, 2))
sketch6.addConstraint(Sketcher.Constraint("Vertical", 1, 2, 4, 2))
sketch6.addConstraint(Sketcher.Constraint("Vertical", 7, 2, 10, 2))
sketch6.addConstraint(Sketcher.Constraint("Vertical", 14, 2, 17, 2))
sketch6.addConstraint(Sketcher.Constraint("Vertical", 12, 2, 19, 2))
sketch6.addConstraint(Sketcher.Constraint("Equal", 4, 8))
sketch6.addConstraint(Sketcher.Constraint("Equal", 6, 13))
sketch6.addConstraint(Sketcher.Constraint("Equal", 10, 15))
sketch6.addConstraint(Sketcher.Constraint("Equal", 17, 21))
sketch6.addConstraint(Sketcher.Constraint("DistanceY", 5, 2, 5, 1, Q("3 mm")))
sketch6.addConstraint(Sketcher.Constraint("DistanceX", 0, 1, 0, 2, Q("3.2 mm")))
sketch6.addConstraint(Sketcher.Constraint("DistanceY", 1, 2, 1, 1, Q("7.4 mm")))
sketch6.addConstraint(Sketcher.Constraint("DistanceY", 3, 2, 3, 1, Q("2.6 mm")))
sketch6.addConstraint(Sketcher.Constraint("DistanceX", 8, 2, -1, 1, Q("35 mm")))
sketch6.addConstraint(Sketcher.Constraint("DistanceX", 2, 1, 2, 2, Q("1.25 mm")))
sketch6.addConstraint(Sketcher.Constraint("DistanceY", 0, 2, -1, 1, Q("12.4 mm")))
sketch6.addConstraint(Sketcher.Constraint("DistanceX", 15, 2, -1, 1, Q("15.8 mm")))
sketch6.setExpression("Constraints[124]", "Params.sketch6_height")
sketch6.setExpression("Constraints[125]", "Params.sketch6_width")
sketch6.setExpression("Constraints[126]", "Params.sketch6_height2")
sketch6.setExpression("Constraints[127]", "Params.sketch6_height3")
sketch6.setExpression("Constraints[129]", "Params.sketch6_width2")
pocket2 = doc.addObject("PartDesign::Pocket", "Pocket001")
body.addObject(pocket2)
pocket2.Profile = sketch6
pocket2.Type = "ThroughAll"
pocket2.Reversed = True
doc.recompute()

fillet3 = doc.addObject("PartDesign::Fillet", "Fillet002")
body.addObject(fillet3)
fillet3.Base = (pocket2, edges_at(pocket2, [
    (-15.55, 3.175, -37.4),
    (-12.55, 3.175, -37.4),
    (-38.25, 3.175, -37.4),
    (-35.25, 3.175, -37.4),
    (-38.144, 3.175, 37.4),
    (-35.25, 3.175, 37.4),
    (-12.55, 3.175, 37.4),
    (-15.55, 3.175, 37.4),
    (-30.55, 3.175, -19.8),
    (-33.75, 3.175, -19.8),
    (-33.75, 3.175, -25.4),
    (-30.55, 3.175, -25.4),
    (-20.25, 3.175, -19.8),
    (-20.25, 3.175, -25.4),
    (-17.05, 3.175, -25.4),
    (-17.05, 3.175, -19.8),
    (-20.25, 3.175, 19.8),
    (-17.05, 3.175, 19.8),
    (-17.05, 3.175, 25.4),
    (-20.25, 3.175, 25.4),
    (-30.55, 3.175, 25.4),
    (-33.75, 3.175, 25.4),
    (-33.75, 3.175, 19.8),
    (-30.55, 3.175, 19.8),
]))
fillet3.setExpression("Radius", "Params.fillet3_radius")
doc.recompute()

fillet4 = doc.addObject("PartDesign::Fillet", "Fillet003")
body.addObject(fillet4)
fillet4.Base = (fillet3, edges_at(fillet3, [(-12.55, 3.175, -25.4), (-38.25, 3.175, -25.4), (-12.55, 3.175, 25.4)]))
fillet4.setExpression("Radius", "Params.fillet4_radius")

doc.recompute()
